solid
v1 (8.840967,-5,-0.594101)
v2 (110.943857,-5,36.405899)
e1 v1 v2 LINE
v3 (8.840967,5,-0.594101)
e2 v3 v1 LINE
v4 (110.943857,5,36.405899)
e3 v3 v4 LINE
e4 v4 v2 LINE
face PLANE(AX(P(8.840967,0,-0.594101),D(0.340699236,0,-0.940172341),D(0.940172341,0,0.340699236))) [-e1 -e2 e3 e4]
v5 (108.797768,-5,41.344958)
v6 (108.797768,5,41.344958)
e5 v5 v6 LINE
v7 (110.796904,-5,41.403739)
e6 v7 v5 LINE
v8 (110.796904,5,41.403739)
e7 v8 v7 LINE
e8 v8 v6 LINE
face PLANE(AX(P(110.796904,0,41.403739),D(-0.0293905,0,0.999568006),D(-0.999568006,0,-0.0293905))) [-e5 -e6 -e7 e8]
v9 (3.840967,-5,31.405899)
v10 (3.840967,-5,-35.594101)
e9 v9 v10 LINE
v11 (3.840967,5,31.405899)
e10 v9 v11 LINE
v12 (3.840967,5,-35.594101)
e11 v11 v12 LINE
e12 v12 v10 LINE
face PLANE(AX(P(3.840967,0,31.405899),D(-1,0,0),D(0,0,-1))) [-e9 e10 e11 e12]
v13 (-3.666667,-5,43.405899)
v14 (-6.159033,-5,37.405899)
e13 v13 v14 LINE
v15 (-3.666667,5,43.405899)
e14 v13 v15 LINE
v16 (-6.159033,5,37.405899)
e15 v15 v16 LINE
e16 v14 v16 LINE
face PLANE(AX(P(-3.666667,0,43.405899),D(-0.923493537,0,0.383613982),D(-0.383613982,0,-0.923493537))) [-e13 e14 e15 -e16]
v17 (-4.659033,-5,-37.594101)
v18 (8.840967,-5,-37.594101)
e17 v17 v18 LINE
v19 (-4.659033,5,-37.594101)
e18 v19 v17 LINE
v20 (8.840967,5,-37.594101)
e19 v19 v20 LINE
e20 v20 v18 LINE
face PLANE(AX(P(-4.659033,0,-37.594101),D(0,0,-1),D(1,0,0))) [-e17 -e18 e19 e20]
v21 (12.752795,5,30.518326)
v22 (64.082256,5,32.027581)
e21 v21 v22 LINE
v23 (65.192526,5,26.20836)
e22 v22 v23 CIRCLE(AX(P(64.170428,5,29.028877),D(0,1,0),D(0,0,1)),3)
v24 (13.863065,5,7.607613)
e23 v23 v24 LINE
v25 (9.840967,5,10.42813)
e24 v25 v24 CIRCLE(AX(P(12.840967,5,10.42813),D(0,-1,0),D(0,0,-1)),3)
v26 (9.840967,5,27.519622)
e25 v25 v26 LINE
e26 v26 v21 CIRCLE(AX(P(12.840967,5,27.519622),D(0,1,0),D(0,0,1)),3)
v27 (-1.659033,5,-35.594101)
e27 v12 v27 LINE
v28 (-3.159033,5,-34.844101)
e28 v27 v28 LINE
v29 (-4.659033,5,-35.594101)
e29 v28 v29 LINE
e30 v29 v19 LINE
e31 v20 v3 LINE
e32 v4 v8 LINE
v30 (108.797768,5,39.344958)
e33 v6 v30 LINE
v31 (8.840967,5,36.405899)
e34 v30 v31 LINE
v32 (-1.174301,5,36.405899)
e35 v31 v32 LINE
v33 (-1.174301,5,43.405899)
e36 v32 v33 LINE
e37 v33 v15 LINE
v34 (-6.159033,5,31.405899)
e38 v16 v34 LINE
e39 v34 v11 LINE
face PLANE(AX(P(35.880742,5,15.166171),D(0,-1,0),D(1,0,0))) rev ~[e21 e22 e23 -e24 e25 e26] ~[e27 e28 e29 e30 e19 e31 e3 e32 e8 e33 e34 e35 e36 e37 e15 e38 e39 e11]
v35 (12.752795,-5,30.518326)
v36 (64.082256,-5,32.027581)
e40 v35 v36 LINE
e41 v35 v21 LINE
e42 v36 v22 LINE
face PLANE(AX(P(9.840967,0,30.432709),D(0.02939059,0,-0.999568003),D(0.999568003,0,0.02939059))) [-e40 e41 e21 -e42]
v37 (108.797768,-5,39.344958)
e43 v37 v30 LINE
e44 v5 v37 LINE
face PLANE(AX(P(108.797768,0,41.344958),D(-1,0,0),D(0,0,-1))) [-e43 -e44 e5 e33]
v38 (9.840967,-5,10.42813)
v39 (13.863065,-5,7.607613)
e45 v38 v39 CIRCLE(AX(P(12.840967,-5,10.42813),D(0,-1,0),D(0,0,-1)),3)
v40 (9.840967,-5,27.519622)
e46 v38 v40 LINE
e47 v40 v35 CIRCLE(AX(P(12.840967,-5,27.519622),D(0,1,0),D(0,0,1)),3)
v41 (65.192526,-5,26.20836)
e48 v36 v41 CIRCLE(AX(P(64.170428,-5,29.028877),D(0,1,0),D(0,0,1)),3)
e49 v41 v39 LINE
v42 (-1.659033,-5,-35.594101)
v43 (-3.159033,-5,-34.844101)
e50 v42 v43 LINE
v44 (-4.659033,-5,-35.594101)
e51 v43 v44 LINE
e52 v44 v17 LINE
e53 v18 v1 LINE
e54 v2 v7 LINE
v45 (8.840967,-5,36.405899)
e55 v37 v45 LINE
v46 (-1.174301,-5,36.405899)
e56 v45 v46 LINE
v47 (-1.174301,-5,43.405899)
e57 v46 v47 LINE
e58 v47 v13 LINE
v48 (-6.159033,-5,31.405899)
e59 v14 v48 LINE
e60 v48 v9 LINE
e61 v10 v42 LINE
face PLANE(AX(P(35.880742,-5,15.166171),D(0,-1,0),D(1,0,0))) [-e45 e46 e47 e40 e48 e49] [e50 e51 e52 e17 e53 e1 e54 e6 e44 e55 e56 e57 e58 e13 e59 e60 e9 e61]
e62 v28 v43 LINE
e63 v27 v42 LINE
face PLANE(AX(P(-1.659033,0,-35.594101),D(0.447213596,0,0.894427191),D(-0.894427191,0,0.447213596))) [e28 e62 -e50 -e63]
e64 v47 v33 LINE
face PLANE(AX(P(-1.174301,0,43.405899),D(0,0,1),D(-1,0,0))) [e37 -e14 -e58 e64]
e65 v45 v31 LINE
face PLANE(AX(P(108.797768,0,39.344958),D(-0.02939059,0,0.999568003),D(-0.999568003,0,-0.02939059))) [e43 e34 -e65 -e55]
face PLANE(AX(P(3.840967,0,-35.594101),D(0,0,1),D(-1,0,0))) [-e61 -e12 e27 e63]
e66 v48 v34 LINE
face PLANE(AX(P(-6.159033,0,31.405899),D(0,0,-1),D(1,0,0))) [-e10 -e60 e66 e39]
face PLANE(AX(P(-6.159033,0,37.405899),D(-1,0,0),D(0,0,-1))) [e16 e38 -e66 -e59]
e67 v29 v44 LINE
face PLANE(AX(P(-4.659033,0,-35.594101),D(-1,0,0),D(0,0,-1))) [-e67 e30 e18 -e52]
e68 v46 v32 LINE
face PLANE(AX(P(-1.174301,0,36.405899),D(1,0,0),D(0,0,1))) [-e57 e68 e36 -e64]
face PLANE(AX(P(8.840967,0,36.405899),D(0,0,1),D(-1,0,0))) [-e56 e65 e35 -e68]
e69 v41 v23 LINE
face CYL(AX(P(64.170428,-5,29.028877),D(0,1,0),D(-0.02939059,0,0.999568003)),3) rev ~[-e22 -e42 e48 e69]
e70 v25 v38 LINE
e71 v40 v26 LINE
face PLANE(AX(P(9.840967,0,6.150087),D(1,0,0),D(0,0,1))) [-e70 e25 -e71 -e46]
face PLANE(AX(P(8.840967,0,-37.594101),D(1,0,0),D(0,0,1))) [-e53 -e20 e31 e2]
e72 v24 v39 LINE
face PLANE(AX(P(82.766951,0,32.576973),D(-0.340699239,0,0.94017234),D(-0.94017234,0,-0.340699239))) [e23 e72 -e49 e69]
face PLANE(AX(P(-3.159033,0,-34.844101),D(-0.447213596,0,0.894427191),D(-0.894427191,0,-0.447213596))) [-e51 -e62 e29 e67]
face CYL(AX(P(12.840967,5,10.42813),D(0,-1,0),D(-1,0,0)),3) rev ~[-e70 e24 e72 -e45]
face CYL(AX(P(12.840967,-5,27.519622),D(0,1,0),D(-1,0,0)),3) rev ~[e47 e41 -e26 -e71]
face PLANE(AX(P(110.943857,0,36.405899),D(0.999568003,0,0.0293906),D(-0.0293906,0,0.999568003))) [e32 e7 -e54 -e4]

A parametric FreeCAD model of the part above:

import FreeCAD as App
import Part
import Sketcher


def edges_at(feature, points):
    """Names of the edges that pass closest to the given points."""
    edges = feature.Shape.Edges
    near = lambda p: min(range(len(edges)), key=lambda i: edges[i].distToShape(Part.Vertex(*p))[0])
    return sorted({f"Edge{near(p) + 1}" for p in points})


def add_polygon(sketch, points):
    """Adds a closed chain of lines whose ends are joined by coincident constraints."""
    first, n = sketch.GeometryCount, len(points)
    for a, b in zip(points, points[1:] + points[:1]):
        sketch.addGeometry(Part.LineSegment(App.Vector(*a, 0), App.Vector(*b, 0)), False)
    for i in range(n):
        sketch.addConstraint(Sketcher.Constraint("Coincident", first + i, 2, first + (i + 1) % n, 1))

doc = App.newDocument("Part")
body = doc.addObject("PartDesign::Body", "Body")

# Sketch on XZ plane
sketch1 = body.newObject("Sketcher::SketchObject", "Sketch")
sketch1.AttachmentSupport = (doc.getObject("XZ_Plane"), [""])
sketch1.MapMode = "FlatFace"
add_polygon(sketch1, [(3.8, 31.4), (3.8, -35.6), (-1.7, -35.6), (-3.2, -34.8), (-4.7, -35.6), (-4.7, -37.6), (8.8, -37.6), (8.8, -0.6), (110.9, 36.4), (110.8, 41.4), (108.8, 41.3), (108.8, 39.3), (8.8, 36.4), (-1.2, 36.4), (-1.2, 43.4), (-3.7, 43.4), (-6.2, 37.4), (-6.2, 31.4)])  # lines 0-17
add_polygon(sketch1, [(82.8, 32.6), (9.8, 6.2), (9.8, 30.4)])  # lines 18-20
sketch1.addConstraint(Sketcher.Constraint("Vertical", 0))
sketch1.addConstraint(Sketcher.Constraint("Horizontal", 1))
sketch1.addConstraint(Sketcher.Constraint("Vertical", 4))
sketch1.addConstraint(Sketcher.Constraint("Horizontal", 5))
sketch1.addConstraint(Sketcher.Constraint("Vertical", 6))
sketch1.addConstraint(Sketcher.Constraint("Vertical", 10))
sketch1.addConstraint(Sketcher.Constraint("Horizontal", 12))
sketch1.addConstraint(Sketcher.Constraint("Vertical", 13))
sketch1.addConstraint(Sketcher.Constraint("Horizontal", 14))
sketch1.addConstraint(Sketcher.Constraint("Vertical", 16))
sketch1.addConstraint(Sketcher.Constraint("Horizontal", 17))
sketch1.addConstraint(Sketcher.Constraint("Vertical", 19))
sketch1.addConstraint(Sketcher.Constraint("Perpendicular", 8, 9))
sketch1.addConstraint(Sketcher.Constraint("Parallel", 9, 11))
sketch1.addConstraint(Sketcher.Constraint("Parallel", 7, 18))
sketch1.addConstraint(Sketcher.Constraint("Parallel", 11, 20))
sketch1.addConstraint(Sketcher.Constraint("Horizontal", 1, 2, 3, 2))
sketch1.addConstraint(Sketcher.Constraint("Horizontal", 7, 2, 11, 2))
sketch1.addConstraint(Sketcher.Constraint("Vertical", 6, 2, 11, 2))
sketch1.addConstraint(Sketcher.Constraint("Equal", 4, 10))
sketch1.addConstraint(Sketcher.Constraint("Equal", 2, 3))
sketch1.addConstraint(Sketcher.Constraint("DistanceX", 17, 1, 17, 2, 10.0))
sketch1.addConstraint(Sketcher.Constraint("DistanceY", 0, 2, 0, 1, 67.0))
sketch1.addConstraint(Sketcher.Constraint("DistanceY", 4, 2, 4, 1, 2.0))
sketch1.addConstraint(Sketcher.Constraint("DistanceY", 6, 1, 6, 2, 37.0))
sketch1.addConstraint(Sketcher.Constraint("DistanceY", 13, 1, 13, 2, 7.0))
sketch1.addConstraint(Sketcher.Constraint("DistanceY", 16, 2, 16, 1, 6.0))
sketch1.addConstraint(Sketcher.Constraint("Distance", 8, 5.0))
sketch1.addConstraint(Sketcher.Constraint("Distance", 9, 2.0))
sketch1.addConstraint(Sketcher.Constraint("Distance", 11, 100.000001))
sketch1.addConstraint(Sketcher.Constraint("DistanceX", 1, 2, 1, 1, 5.5))
sketch1.addConstraint(Sketcher.Constraint("DistanceX", 5, 1, 5, 2, 13.5))
sketch1.addConstraint(Sketcher.Constraint("DistanceX", 2, 2, 0, 2, 7.0))
sketch1.addConstraint(Sketcher.Constraint("DistanceY", 6, 2, 7, 2, 37.0))
sketch1.addConstraint(Sketcher.Constraint("DistanceX", 6, 2, 18, 2, 1.0))
sketch1.addConstraint(Sketcher.Constraint("DistanceY", 1, 2, 2, 2, 0.75))
sketch1.addConstraint(Sketcher.Constraint("Distance", 20, 72.957501))
sketch1.addConstraint(Sketcher.Constraint("DistanceY", 0, 2, -1, 1, 35.594101))
sketch1.addConstraint(Sketcher.Constraint("DistanceX", 12, 2, -1, 1, 1.174301))
sketch1.addConstraint(Sketcher.Constraint("DistanceX", 12, 2, 12, 1, 10.015268))
sketch1.addConstraint(Sketcher.Constraint("DistanceX", 14, 2, 14, 1, 2.492366))
sketch1.addConstraint(Sketcher.Constraint("DistanceY", -1, 1, 19, 2, 30.432709))
pad1 = body.newObject("PartDesign::Pad", "Pad")
pad1.Profile = sketch1
pad1.Length = 10
pad1.Midplane = True
doc.recompute()

fillet = body.newObject("PartDesign::Fillet", "Fillet")
fillet.Base = (pad1, edges_at(pad1, [(82.767, 0, 32.577), (9.841, 0, 30.433), (9.841, 0, 6.15)]))
fillet.Radius = 3

doc.recompute()
